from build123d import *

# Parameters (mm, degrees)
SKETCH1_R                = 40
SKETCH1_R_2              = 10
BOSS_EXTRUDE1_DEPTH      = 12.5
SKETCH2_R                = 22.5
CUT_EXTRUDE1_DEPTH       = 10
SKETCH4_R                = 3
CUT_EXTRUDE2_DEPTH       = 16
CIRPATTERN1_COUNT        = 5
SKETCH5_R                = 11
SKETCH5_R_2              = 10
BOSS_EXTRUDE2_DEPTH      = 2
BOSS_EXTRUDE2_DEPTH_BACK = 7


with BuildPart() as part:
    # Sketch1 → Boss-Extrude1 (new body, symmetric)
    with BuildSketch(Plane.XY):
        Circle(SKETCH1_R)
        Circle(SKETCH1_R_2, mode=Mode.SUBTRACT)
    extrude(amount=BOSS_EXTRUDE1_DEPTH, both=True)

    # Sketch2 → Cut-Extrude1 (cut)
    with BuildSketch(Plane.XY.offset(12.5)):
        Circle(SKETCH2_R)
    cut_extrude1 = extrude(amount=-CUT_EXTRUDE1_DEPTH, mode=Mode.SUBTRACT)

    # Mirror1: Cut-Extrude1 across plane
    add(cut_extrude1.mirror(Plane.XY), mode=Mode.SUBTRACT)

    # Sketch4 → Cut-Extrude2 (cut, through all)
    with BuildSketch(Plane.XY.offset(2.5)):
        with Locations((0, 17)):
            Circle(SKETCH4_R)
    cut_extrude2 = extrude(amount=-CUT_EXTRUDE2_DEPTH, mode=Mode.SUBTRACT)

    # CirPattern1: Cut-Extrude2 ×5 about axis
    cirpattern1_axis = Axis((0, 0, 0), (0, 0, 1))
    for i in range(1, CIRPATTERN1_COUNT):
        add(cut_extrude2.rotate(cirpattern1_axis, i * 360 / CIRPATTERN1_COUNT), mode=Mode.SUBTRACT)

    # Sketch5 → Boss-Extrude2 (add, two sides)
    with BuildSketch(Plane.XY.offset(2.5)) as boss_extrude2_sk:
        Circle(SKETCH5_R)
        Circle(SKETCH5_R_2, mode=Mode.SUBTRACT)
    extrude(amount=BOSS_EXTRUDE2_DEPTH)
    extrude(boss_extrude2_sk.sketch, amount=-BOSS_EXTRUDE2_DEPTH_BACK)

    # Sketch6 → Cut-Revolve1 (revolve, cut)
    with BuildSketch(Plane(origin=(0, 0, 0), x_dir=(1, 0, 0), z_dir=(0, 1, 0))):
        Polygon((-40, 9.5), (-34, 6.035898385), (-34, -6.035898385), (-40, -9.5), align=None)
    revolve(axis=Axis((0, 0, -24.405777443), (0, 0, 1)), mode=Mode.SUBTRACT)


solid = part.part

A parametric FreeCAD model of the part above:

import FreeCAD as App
import Part
import Sketcher

V = App.Vector
Q = App.Units.Quantity


def add_polygon(sketch, points):
    """Adds a closed chain of lines whose ends are joined by coincident constraints."""
    first, n = sketch.GeometryCount, len(points)
    for a, b in zip(points, points[1:] + points[:1]):
        sketch.addGeometry(Part.LineSegment(App.Vector(*a, 0), App.Vector(*b, 0)), False)
    for i in range(n):
        sketch.addConstraint(Sketcher.Constraint("Coincident", first + i, 2, first + (i + 1) % n, 1))

doc = App.newDocument("Part")
body = doc.addObject("PartDesign::Body", "Body")

# Sketch on XY plane
sketch1 = body.newObject("Sketcher::SketchObject", "Sketch")
sketch1.AttachmentSupport = (doc.getObject("XY_Plane"), [""])
sketch1.MapMode = "FlatFace"
sketch1.addGeometry([
    Part.Circle(V(0, 0, 0), V(0, 0, 1), 40),
    Part.Circle(V(0, 0, 0), V(0, 0, 1), 10),
], False)
sketch1.addConstraint([
    Sketcher.Constraint("Coincident", 0, 3, -1, 1),
    Sketcher.Constraint("Coincident", 1, 3, -1, 1),
    Sketcher.Constraint("Diameter", 0, 80.0),
    Sketcher.Constraint("Diameter", 1, 20.0),
])
pad1 = body.newObject("PartDesign::Pad", "Pad")
pad1.Profile = sketch1
pad1.Length = 25
pad1.Midplane = True

# Sketch on XY plane
sketch2 = body.newObject("Sketcher::SketchObject", "Sketch001")
sketch2.AttachmentSupport = (doc.getObject("XY_Plane"), [""])
sketch2.MapMode = "FlatFace"
sketch2.AttachmentOffset = App.Placement(V(0, 0, 12.5), App.Rotation())
sketch2.addGeometry(Part.Circle(V(0, 0, 0), V(0, 0, 1), 22), False)
sketch2.addConstraint([
    Sketcher.Constraint("Coincident", 0, 3, -1, 1),
    Sketcher.Constraint("Diameter", 0, 45.0),
])
pocket1 = body.newObject("PartDesign::Pocket", "Pocket")
pocket1.Profile = sketch2
pocket1.Length = 10
doc.recompute()

mirrored = body.newObject("PartDesign::Mirrored", "Mirrored")
mirrored.Originals = [pocket1]
mirrored.MirrorPlane = (doc.getObject("XY_Plane"), [""])
body.Tip = mirrored

# Sketch on XY plane
sketch3 = body.newObject("Sketcher::SketchObject", "Sketch002")
sketch3.AttachmentSupport = (doc.getObject("XY_Plane"), [""])
sketch3.MapMode = "FlatFace"
sketch3.AttachmentOffset = App.Placement(V(0, 0, 2.5), App.Rotation())
sketch3.addGeometry(Part.Circle(V(0, 17, 0), V(0, 0, 1), 3), False)
sketch3.addConstraint([
    Sketcher.Constraint("PointOnObject", 0, 3, -2),
    Sketcher.Constraint("Diameter", 0, 6.0),
    Sketcher.Constraint("DistanceY", -1, 1, 0, 3, 17.0),
])
pocket2 = body.newObject("PartDesign::Pocket", "Pocket001")
pocket2.Profile = sketch3
pocket2.Type = "ThroughAll"
doc.recompute()

polarpattern = body.newObject("PartDesign::PolarPattern", "PolarPattern")
polarpattern.Originals = [pocket2]
polarpattern.Axis = (doc.getObject("Z_Axis"), [""])
polarpattern.Angle = 360
polarpattern.Occurrences = 5
body.Tip = polarpattern

# Sketch on XY plane
sketch4 = body.newObject("Sketcher::SketchObject", "Sketch003")
sketch4.AttachmentSupport = (doc.getObject("XY_Plane"), [""])
sketch4.MapMode = "FlatFace"
sketch4.AttachmentOffset = App.Placement(V(0, 0, 2.5), App.Rotation())
sketch4.addGeometry([
    Part.Circle(V(0, 0, 0), V(0, 0, 1), 11),
    Part.Circle(V(0, 0, 0), V(0, 0, 1), 10),
], False)
sketch4.addConstraint([
    Sketcher.Constraint("Coincident", 0, 3, -1, 1),
    Sketcher.Constraint("Coincident", 1, 3, -1, 1),
    Sketcher.Constraint("Diameter", 0, 22.0),
    Sketcher.Constraint("Diameter", 1, 20.0),
])
pad2 = body.newObject("PartDesign::Pad", "Pad001")
pad2.Profile = sketch4
pad2.Type = "TwoLengths"
pad2.Length = 2
pad2.Length2 = 7

# Sketch on XZ plane
sketch5 = body.newObject("Sketcher::SketchObject", "Sketch004")
sketch5.AttachmentSupport = (doc.getObject("XZ_Plane"), [""])
sketch5.MapMode = "FlatFace"
add_polygon(sketch5, [(-34, -6), (-40, -10), (-40, 10), (-34, 6)])  # lines 0-3
sketch5.addConstraint([
    Sketcher.Constraint("Vertical", 1),
    Sketcher.Constraint("Vertical", 3),
    Sketcher.Constraint("Equal", 0, 2),
    Sketcher.Constraint("DistanceY", 1, 1, 1, 2, 19.0),
    Sketcher.Constraint("Angle", 0, Q("-150 deg")),
    Sketcher.Constraint("DistanceX", 0, 2, -1, 1, 40.0),
    Sketcher.Constraint("DistanceX", 2, 2, -1, 1, 34.0),
    Sketcher.Constraint("DistanceY", 0, 2, -1, 1, 9.5),
])
groove = body.newObject("PartDesign::Groove", "Groove")
groove.Profile = sketch5
groove.ReferenceAxis = (sketch5, ["V_Axis"])
groove.Angle = 360

doc.recompute()
